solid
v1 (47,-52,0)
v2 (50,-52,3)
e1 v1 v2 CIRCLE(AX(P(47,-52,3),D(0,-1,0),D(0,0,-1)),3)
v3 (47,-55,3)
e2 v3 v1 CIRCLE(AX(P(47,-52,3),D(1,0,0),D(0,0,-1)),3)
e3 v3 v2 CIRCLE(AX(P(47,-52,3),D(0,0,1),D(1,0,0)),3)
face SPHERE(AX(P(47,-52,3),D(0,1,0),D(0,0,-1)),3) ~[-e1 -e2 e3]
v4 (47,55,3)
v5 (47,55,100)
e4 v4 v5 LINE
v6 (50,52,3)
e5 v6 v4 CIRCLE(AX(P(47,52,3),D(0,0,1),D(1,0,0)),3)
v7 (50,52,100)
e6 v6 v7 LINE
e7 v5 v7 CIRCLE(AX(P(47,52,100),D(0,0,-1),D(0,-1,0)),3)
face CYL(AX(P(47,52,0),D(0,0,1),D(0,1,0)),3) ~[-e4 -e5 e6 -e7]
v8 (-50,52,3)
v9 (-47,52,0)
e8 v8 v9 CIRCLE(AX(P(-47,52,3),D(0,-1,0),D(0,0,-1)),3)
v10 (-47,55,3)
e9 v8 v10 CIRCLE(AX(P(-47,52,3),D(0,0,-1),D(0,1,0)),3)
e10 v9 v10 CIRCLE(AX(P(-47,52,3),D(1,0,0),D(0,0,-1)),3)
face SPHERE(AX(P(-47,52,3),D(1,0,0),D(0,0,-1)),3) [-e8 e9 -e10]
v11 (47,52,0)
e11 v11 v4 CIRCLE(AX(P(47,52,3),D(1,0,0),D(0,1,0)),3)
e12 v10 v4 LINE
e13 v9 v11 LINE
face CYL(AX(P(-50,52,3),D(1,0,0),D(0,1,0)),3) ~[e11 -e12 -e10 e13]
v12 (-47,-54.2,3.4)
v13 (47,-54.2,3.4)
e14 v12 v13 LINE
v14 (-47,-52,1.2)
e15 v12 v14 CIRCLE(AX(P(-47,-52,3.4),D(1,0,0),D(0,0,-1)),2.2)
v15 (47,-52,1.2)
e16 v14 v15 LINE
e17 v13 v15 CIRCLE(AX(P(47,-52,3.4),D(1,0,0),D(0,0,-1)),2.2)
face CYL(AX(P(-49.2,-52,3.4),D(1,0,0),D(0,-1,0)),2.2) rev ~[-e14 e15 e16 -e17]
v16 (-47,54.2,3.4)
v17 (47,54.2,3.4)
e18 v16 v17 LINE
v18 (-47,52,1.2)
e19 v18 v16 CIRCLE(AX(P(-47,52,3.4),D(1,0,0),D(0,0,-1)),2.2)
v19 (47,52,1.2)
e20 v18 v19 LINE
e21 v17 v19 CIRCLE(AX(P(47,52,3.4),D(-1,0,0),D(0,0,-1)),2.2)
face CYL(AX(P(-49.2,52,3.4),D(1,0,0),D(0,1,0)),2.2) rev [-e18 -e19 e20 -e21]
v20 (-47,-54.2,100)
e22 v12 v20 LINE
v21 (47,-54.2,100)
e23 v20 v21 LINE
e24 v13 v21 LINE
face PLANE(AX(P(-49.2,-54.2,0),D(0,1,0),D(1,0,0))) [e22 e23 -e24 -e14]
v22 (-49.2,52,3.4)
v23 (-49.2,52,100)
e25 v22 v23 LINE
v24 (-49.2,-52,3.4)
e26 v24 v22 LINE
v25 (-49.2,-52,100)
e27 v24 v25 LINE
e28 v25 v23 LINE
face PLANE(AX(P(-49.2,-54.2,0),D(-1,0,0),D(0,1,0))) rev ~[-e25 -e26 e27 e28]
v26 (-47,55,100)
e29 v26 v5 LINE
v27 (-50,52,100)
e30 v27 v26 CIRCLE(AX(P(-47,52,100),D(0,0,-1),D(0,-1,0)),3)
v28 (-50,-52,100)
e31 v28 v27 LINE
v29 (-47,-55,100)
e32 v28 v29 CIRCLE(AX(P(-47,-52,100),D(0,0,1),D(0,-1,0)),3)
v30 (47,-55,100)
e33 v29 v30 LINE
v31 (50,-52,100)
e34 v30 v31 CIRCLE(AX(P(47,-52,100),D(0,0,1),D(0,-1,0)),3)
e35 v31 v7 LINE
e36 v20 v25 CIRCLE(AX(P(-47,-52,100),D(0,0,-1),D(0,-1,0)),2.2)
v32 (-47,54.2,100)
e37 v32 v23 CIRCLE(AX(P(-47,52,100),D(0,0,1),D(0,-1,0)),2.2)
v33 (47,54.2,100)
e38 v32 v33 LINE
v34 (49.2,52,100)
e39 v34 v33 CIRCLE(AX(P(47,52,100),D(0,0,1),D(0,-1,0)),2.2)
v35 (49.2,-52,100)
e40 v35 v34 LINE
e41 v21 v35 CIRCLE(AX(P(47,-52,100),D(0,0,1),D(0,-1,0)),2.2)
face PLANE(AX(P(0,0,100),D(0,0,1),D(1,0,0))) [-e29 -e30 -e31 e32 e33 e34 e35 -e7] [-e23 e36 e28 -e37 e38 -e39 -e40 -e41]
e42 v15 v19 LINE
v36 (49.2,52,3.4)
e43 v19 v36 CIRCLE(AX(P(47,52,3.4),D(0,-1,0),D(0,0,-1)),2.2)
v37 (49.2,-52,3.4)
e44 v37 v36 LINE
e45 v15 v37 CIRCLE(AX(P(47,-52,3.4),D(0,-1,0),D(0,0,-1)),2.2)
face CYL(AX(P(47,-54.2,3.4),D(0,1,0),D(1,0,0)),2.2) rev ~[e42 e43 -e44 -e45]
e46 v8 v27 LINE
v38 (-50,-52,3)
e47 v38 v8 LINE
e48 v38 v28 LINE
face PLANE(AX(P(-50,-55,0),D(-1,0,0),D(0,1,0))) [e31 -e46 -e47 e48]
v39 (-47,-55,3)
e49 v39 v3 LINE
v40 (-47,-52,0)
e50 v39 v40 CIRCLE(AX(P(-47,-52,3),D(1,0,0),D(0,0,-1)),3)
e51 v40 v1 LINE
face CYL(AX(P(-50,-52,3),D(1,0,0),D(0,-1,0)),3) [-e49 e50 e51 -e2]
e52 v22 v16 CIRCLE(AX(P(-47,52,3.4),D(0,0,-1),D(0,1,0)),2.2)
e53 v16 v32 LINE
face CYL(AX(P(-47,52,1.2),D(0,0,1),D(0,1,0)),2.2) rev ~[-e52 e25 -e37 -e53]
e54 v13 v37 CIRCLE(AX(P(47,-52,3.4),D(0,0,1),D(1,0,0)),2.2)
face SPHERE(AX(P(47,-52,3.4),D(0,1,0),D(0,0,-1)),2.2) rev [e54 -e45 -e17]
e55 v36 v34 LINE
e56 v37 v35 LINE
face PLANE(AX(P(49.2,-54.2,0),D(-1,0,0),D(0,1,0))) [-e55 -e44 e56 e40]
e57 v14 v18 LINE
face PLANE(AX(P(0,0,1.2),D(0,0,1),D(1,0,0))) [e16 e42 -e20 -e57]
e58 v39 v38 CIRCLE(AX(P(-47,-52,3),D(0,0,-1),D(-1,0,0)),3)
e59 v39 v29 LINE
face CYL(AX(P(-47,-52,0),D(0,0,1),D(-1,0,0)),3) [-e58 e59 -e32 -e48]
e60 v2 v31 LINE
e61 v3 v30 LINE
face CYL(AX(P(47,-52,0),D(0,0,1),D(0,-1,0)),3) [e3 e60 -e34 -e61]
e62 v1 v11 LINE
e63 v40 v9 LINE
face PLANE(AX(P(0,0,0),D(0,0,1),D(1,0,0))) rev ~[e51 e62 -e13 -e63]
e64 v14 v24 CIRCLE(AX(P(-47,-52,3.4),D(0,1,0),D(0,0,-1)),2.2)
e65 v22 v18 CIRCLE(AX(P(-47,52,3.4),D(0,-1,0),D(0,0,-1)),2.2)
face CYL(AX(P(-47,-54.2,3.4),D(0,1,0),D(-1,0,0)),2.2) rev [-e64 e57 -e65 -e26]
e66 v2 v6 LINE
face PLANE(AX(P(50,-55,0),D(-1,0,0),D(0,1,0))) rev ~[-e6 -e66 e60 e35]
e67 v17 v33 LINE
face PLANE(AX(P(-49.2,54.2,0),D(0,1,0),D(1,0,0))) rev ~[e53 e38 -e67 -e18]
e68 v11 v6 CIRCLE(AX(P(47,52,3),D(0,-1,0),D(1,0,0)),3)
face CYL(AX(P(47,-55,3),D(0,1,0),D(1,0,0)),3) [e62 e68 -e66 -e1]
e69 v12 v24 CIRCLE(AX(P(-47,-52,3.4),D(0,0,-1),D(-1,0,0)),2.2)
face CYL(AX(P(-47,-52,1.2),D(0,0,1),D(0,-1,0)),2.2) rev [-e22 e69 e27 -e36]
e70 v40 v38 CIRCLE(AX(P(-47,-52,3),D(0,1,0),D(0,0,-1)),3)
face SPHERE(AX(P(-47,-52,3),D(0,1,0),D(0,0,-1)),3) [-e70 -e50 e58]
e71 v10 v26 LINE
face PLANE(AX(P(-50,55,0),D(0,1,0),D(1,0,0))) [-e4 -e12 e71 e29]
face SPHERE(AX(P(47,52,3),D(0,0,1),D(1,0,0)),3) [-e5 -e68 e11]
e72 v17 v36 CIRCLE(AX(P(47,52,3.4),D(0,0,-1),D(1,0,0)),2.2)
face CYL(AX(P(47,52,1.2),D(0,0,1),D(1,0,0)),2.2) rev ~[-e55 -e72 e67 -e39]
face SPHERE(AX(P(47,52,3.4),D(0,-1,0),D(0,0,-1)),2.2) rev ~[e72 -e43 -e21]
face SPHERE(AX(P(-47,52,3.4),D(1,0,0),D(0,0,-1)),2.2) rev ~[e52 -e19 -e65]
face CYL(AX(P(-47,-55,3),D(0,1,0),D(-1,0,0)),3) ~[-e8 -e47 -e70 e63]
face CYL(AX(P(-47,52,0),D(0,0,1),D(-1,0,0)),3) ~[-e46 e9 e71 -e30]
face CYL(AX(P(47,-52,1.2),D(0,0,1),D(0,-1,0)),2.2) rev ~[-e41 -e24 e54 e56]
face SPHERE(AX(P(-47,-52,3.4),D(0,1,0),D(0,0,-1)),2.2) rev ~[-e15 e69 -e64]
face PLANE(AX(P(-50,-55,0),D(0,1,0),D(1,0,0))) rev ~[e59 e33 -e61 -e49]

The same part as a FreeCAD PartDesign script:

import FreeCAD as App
import Part
import Sketcher

V = App.Vector


def edges_at(feature, points):
    """Names of the edges that pass closest to the given points."""
    edges = feature.Shape.Edges
    near = lambda p: min(range(len(edges)), key=lambda i: edges[i].distToShape(Part.Vertex(*p))[0])
    return sorted({f"Edge{near(p) + 1}" for p in points})

doc = App.newDocument("Part")
body = doc.addObject("PartDesign::Body", "Body")

sketch1 = body.newObject("Sketcher::SketchObject", "Sketch")
sketch1.AttachmentSupport = (doc.getObject("XY_Plane"), [""])
sketch1.MapMode = "FlatFace"
sketch1.addGeometry([
    Part.LineSegment(V(-49, 54, 0), V(-49, -54, 0)),
    Part.LineSegment(V(-49, -54, 0), V(49, -54, 0)),
    Part.LineSegment(V(49, -54, 0), V(49, 54, 0)),
    Part.LineSegment(V(49, 54, 0), V(-49, 54, 0)),
], False)
sketch1.addConstraint([
    Sketcher.Constraint("Coincident", 0, 2, 1, 1),
    Sketcher.Constraint("Coincident", 1, 2, 2, 1),
    Sketcher.Constraint("Coincident", 2, 2, 3, 1),
    Sketcher.Constraint("Coincident", 3, 2, 0, 1),
    Sketcher.Constraint("Vertical", 0),
    Sketcher.Constraint("Horizontal", 1),
    Sketcher.Constraint("Vertical", 2),
    Sketcher.Constraint("Horizontal", 3),
    Sketcher.Constraint("Symmetric", 0, 2, 2, 2, -1, 1),
    Sketcher.Constraint("DistanceX", 1, 1, 1, 2, 98.4),
    Sketcher.Constraint("DistanceY", 0, 2, 0, 1, 108.4),
])
pad1 = body.newObject("PartDesign::Pad", "Pad")
pad1.Profile = sketch1
pad1.Length = 1.2

sketch2 = body.newObject("Sketcher::SketchObject", "Sketch001")
sketch2.AttachmentSupport = (doc.getObject("XY_Plane"), [""])
sketch2.MapMode = "FlatFace"
sketch2.addGeometry([
    Part.LineSegment(V(-50, 55, 0), V(-50, -55, 0)),
    Part.LineSegment(V(-50, -55, 0), V(50, -55, 0)),
    Part.LineSegment(V(50, -55, 0), V(50, 55, 0)),
    Part.LineSegment(V(50, 55, 0), V(-50, 55, 0)),
    Part.LineSegment(V(49, -54, 0), V(-49, -54, 0)),
    Part.LineSegment(V(-49, -54, 0), V(-49, 54, 0)),
    Part.LineSegment(V(-49, 54, 0), V(49, 54, 0)),
    Part.LineSegment(V(49, 54, 0), V(49, -54, 0)),
], False)
sketch2.addConstraint([
    Sketcher.Constraint("Coincident", 0, 2, 1, 1),
    Sketcher.Constraint("Coincident", 1, 2, 2, 1),
    Sketcher.Constraint("Coincident", 2, 2, 3, 1),
    Sketcher.Constraint("Coincident", 3, 2, 0, 1),
    Sketcher.Constraint("Coincident", 4, 2, 5, 1),
    Sketcher.Constraint("Coincident", 5, 2, 6, 1),
    Sketcher.Constraint("Coincident", 6, 2, 7, 1),
    Sketcher.Constraint("Coincident", 7, 2, 4, 1),
    Sketcher.Constraint("Vertical", 0),
    Sketcher.Constraint("Horizontal", 1),
    Sketcher.Constraint("Vertical", 2),
    Sketcher.Constraint("Horizontal", 3),
    Sketcher.Constraint("Horizontal", 4),
    Sketcher.Constraint("Vertical", 5),
    Sketcher.Constraint("Horizontal", 6),
    Sketcher.Constraint("Vertical", 7),
    Sketcher.Constraint("Symmetric", 0, 2, 2, 2, -1, 1),
    Sketcher.Constraint("Symmetric", 4, 2, 6, 2, -1, 1),
    Sketcher.Constraint("DistanceX", 1, 1, 1, 2, 100.0),
    Sketcher.Constraint("DistanceY", 0, 2, 0, 1, 110.0),
    Sketcher.Constraint("DistanceX", 4, 2, 4, 1, 98.4),
    Sketcher.Constraint("DistanceY", 5, 1, 5, 2, 108.4),
])
pad2 = body.newObject("PartDesign::Pad", "Pad001")
pad2.Profile = sketch2
pad2.Length = 100
doc.recompute()

fillet = body.newObject("PartDesign::Fillet", "Fillet")
fillet.Base = (pad2, edges_at(pad2, [
    (49.2, 0, 1.2),
    (0, 54.2, 1.2),
    (-49.2, 0, 1.2),
    (0, -54.2, 1.2),
    (-49.2, 54.2, 50.6),
    (-49.2, -54.2, 50.6),
    (49.2, -54.2, 50.6),
    (49.2, 54.2, 50.6),
]))
fillet.Radius = 2.2
doc.recompute()

fillet2 = body.newObject("PartDesign::Fillet", "Fillet001")
fillet2.Base = (fillet, edges_at(fillet, [
    (50, 55, 50),
    (50, 0, 0),
    (0, 55, 0),
    (-50, 0, 0),
    (0, -55, 0),
    (-50, 55, 50),
    (-50, -55, 50),
    (50, -55, 50),
]))
fillet2.Radius = 3

doc.recompute()
